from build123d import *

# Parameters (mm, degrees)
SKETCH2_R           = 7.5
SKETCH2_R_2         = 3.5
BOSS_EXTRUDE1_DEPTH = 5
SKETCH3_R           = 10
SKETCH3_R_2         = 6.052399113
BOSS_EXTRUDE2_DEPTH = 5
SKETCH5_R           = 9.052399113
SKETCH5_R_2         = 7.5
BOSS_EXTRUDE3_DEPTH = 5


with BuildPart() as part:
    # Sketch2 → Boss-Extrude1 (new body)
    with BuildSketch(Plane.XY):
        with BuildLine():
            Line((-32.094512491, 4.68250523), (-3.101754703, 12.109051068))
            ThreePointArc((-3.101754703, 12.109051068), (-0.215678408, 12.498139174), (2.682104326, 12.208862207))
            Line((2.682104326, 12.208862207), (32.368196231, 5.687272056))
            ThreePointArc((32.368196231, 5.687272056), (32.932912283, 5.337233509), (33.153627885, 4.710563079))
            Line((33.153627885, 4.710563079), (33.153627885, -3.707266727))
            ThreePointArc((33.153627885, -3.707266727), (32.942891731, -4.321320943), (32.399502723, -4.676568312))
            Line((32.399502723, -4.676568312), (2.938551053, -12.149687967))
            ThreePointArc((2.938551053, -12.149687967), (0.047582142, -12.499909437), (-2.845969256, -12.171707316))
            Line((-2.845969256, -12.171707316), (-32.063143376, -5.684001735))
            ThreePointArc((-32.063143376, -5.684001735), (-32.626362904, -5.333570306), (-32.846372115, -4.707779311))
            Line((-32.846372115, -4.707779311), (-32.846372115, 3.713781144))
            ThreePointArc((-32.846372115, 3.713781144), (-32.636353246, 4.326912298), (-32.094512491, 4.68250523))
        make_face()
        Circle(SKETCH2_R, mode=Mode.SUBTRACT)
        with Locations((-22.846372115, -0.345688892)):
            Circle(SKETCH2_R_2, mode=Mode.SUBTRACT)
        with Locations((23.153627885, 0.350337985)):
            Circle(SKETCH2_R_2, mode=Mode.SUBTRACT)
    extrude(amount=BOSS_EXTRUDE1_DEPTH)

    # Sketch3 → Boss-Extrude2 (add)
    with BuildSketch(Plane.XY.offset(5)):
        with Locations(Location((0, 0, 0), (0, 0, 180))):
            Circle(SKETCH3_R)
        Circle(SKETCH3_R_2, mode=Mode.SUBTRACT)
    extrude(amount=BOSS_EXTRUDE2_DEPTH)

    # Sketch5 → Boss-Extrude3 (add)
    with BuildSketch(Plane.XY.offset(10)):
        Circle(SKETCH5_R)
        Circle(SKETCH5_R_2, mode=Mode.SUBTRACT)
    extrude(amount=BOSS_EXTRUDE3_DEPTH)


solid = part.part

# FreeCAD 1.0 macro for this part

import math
import FreeCAD as App
import Part
import Sketcher
from FreeCAD import Vector
Q = App.Units.Quantity

doc = App.newDocument("Part")
body = doc.addObject("PartDesign::Body", "Body")

sketch1 = body.newObject("Sketcher::SketchObject", "Sketch")
sketch1.AttachmentSupport = (doc.getObject("XY_Plane"), [""])
sketch1.MapMode = "FlatFace"
sketch1.addGeometry([
    Part.LineSegment(Vector(-3.101755, 12.109051, 0), Vector(-32.094512, 4.682505, 0)),
    Part.ArcOfCircle(Part.Circle(Vector(-31.846372, 3.713781, 0), Vector(0, 0, 1), 1), math.radians(104.367497), math.radians(180)),
    Part.LineSegment(Vector(-32.846372, 3.713781, 0), Vector(-32.846372, -4.707779, 0)),
    Part.ArcOfCircle(Part.Circle(Vector(-31.846372, -4.707779, 0), Vector(0, 0, 1), 1), math.radians(180), math.radians(257.480536)),
    Part.LineSegment(Vector(-32.063143, -5.684002, 0), Vector(-2.845969, -12.171707, 0)),
    Part.ArcOfCircle(Part.Circle(Vector(0, 0, 0), Vector(0, 0, 1), 12.5), math.radians(-103.160377), math.radians(-76.403421)),
    Part.LineSegment(Vector(2.938551, -12.149688, 0), Vector(32.399503, -4.676568, 0)),
    Part.ArcOfCircle(Part.Circle(Vector(32.153628, -3.707267, 0), Vector(0, 0, 1), 1), math.radians(-75.76646), math.radians(0)),
    Part.LineSegment(Vector(33.153628, -3.707267, 0), Vector(33.153628, 4.710563, 0)),
    Part.ArcOfCircle(Part.Circle(Vector(32.153628, 4.710563, 0), Vector(0, 0, 1), 1), math.radians(0), math.radians(77.609796)),
    Part.LineSegment(Vector(32.368196, 5.687272, 0), Vector(2.682104, 12.208862, 0)),
    Part.ArcOfCircle(Part.Circle(Vector(0, 0, 0), Vector(0, 0, 1), 12.5), math.radians(77.609796), math.radians(104.367496)),
    Part.Circle(Vector(-22.846372, -0.345689, 0), Vector(0, 0, 1), 3.5),
    Part.Circle(Vector(23.153628, 0.350338, 0), Vector(0, 0, 1), 3.5),
    Part.Circle(Vector(0, 0, 0), Vector(0, 0, 1), 7.5),
], False)
sketch1.addConstraint([
    Sketcher.Constraint("Coincident", 0, 2, 1, 1),
    Sketcher.Constraint("Coincident", 1, 2, 2, 1),
    Sketcher.Constraint("Coincident", 2, 2, 3, 1),
    Sketcher.Constraint("Coincident", 3, 2, 4, 1),
    Sketcher.Constraint("Coincident", 4, 2, 5, 1),
    Sketcher.Constraint("Coincident", 5, 2, 6, 1),
    Sketcher.Constraint("Coincident", 6, 2, 7, 1),
    Sketcher.Constraint("Coincident", 7, 2, 8, 1),
    Sketcher.Constraint("Coincident", 8, 2, 9, 1),
    Sketcher.Constraint("Coincident", 9, 2, 10, 1),
    Sketcher.Constraint("Coincident", 10, 2, 11, 1),
    Sketcher.Constraint("Coincident", 11, 2, 0, 1),
    Sketcher.Constraint("Vertical", 2),
    Sketcher.Constraint("Vertical", 8),
    Sketcher.Constraint("Coincident", 5, 3, -1, 1),
    Sketcher.Constraint("Coincident", 11, 3, -1, 1),
    Sketcher.Constraint("Coincident", 14, 3, -1, 1),
    Sketcher.Constraint("Diameter", 12, Q("7 mm")),
    Sketcher.Constraint("Diameter", 13, Q("7 mm")),
    Sketcher.Constraint("Diameter", 14, Q("15 mm")),
    Sketcher.Constraint("Radius", 1, Q("1 mm")),
    Sketcher.Constraint("Radius", 3, Q("1 mm")),
    Sketcher.Constraint("Radius", 7, Q("1 mm")),
    Sketcher.Constraint("Radius", 9, Q("1 mm")),
    Sketcher.Constraint("Radius", 5, Q("12.5 mm")),
    Sketcher.Constraint("Radius", 11, Q("12.5 mm")),
    Sketcher.Constraint("DistanceX", 3, 3, 7, 3, Q("64 mm")),
    Sketcher.Constraint("DistanceX", 1, 3, 12, 3, Q("9 mm")),
    Sketcher.Constraint("DistanceX", 13, 3, 7, 3, Q("9 mm")),
    Sketcher.Constraint("Distance", 6, Q("30.393999 mm")),
    Sketcher.Constraint("Distance", 10, Q("30.393999 mm")),
    Sketcher.Constraint("DistanceY", 3, 2, -1, 1, Q("5.684002 mm")),
    Sketcher.Constraint("DistanceY", 2, 2, 2, 1, Q("8.42156 mm")),
    Sketcher.Constraint("DistanceY", 8, 1, 8, 2, Q("8.41783 mm")),
    Sketcher.Constraint("DistanceY", 6, 2, 7, 3, Q("0.969302 mm")),
    Sketcher.Constraint("DistanceY", 6, 2, 7, 2, Q("0.969302 mm")),
    Sketcher.Constraint("Distance", 0, Q("29.928809 mm")),
    Sketcher.Constraint("Distance", 4, Q("29.928809 mm")),
    Sketcher.Constraint("DistanceY", -1, 1, 1, 3, Q("3.713781 mm")),
    Sketcher.Constraint("DistanceY", 3, 3, -1, 1, Q("4.707779 mm")),
    Sketcher.Constraint("DistanceY", 12, 3, -1, 1, Q("0.345689 mm")),
    Sketcher.Constraint("DistanceY", -1, 1, 1, 2, Q("3.713781 mm")),
    Sketcher.Constraint("DistanceX", 4, 2, -1, 1, Q("2.845969 mm")),
    Sketcher.Constraint("DistanceX", -1, 1, 5, 2, Q("2.938551 mm")),
    Sketcher.Constraint("DistanceY", -1, 1, 11, 2, Q("12.109051 mm")),
    Sketcher.Constraint("DistanceY", 7, 3, 9, 3, Q("8.41783 mm")),
    Sketcher.Constraint("DistanceY", 11, 3, 13, 3, Q("0.350338 mm")),
    Sketcher.Constraint("DistanceX", 9, 3, 9, 2, Q("0.214568 mm")),
])
pad1 = body.newObject("PartDesign::Pad", "Pad")
pad1.Profile = sketch1
pad1.Length = 5

sketch2 = body.newObject("Sketcher::SketchObject", "Sketch001")
sketch2.AttachmentSupport = (doc.getObject("XY_Plane"), [""])
sketch2.MapMode = "FlatFace"
sketch2.AttachmentOffset = App.Placement(Vector(0, 0, 5), App.Rotation())
sketch2.addGeometry([
    Part.Circle(Vector(0, 0, 0), Vector(0, 0, 1), 10),
    Part.Circle(Vector(0, 0, 0), Vector(0, 0, 1), 6.052399),
], False)
sketch2.addConstraint([
    Sketcher.Constraint("Coincident", 0, 3, -1, 1),
    Sketcher.Constraint("Coincident", 1, 3, -1, 1),
    Sketcher.Constraint("Diameter", 0, Q("20 mm")),
    Sketcher.Constraint("Diameter", 1, Q("12.104798 mm")),
])
pad2 = body.newObject("PartDesign::Pad", "Pad001")
pad2.Profile = sketch2
pad2.Length = 5

sketch3 = body.newObject("Sketcher::SketchObject", "Sketch002")
sketch3.AttachmentSupport = (doc.getObject("XY_Plane"), [""])
sketch3.MapMode = "FlatFace"
sketch3.AttachmentOffset = App.Placement(Vector(0, 0, 10), App.Rotation())
sketch3.addGeometry([
    Part.Circle(Vector(0, 0, 0), Vector(0, 0, 1), 9.052399),
    Part.Circle(Vector(0, 0, 0), Vector(0, 0, 1), 7.5),
], False)
sketch3.addConstraint([
    Sketcher.Constraint("Coincident", 0, 3, -1, 1),
    Sketcher.Constraint("Coincident", 1, 3, -1, 1),
    Sketcher.Constraint("Diameter", 1, Q("15 mm")),
    Sketcher.Constraint("Diameter", 0, Q("18.104798 mm")),
])
pad3 = body.newObject("PartDesign::Pad", "Pad002")
pad3.Profile = sketch3
pad3.Length = 5

doc.recompute()
